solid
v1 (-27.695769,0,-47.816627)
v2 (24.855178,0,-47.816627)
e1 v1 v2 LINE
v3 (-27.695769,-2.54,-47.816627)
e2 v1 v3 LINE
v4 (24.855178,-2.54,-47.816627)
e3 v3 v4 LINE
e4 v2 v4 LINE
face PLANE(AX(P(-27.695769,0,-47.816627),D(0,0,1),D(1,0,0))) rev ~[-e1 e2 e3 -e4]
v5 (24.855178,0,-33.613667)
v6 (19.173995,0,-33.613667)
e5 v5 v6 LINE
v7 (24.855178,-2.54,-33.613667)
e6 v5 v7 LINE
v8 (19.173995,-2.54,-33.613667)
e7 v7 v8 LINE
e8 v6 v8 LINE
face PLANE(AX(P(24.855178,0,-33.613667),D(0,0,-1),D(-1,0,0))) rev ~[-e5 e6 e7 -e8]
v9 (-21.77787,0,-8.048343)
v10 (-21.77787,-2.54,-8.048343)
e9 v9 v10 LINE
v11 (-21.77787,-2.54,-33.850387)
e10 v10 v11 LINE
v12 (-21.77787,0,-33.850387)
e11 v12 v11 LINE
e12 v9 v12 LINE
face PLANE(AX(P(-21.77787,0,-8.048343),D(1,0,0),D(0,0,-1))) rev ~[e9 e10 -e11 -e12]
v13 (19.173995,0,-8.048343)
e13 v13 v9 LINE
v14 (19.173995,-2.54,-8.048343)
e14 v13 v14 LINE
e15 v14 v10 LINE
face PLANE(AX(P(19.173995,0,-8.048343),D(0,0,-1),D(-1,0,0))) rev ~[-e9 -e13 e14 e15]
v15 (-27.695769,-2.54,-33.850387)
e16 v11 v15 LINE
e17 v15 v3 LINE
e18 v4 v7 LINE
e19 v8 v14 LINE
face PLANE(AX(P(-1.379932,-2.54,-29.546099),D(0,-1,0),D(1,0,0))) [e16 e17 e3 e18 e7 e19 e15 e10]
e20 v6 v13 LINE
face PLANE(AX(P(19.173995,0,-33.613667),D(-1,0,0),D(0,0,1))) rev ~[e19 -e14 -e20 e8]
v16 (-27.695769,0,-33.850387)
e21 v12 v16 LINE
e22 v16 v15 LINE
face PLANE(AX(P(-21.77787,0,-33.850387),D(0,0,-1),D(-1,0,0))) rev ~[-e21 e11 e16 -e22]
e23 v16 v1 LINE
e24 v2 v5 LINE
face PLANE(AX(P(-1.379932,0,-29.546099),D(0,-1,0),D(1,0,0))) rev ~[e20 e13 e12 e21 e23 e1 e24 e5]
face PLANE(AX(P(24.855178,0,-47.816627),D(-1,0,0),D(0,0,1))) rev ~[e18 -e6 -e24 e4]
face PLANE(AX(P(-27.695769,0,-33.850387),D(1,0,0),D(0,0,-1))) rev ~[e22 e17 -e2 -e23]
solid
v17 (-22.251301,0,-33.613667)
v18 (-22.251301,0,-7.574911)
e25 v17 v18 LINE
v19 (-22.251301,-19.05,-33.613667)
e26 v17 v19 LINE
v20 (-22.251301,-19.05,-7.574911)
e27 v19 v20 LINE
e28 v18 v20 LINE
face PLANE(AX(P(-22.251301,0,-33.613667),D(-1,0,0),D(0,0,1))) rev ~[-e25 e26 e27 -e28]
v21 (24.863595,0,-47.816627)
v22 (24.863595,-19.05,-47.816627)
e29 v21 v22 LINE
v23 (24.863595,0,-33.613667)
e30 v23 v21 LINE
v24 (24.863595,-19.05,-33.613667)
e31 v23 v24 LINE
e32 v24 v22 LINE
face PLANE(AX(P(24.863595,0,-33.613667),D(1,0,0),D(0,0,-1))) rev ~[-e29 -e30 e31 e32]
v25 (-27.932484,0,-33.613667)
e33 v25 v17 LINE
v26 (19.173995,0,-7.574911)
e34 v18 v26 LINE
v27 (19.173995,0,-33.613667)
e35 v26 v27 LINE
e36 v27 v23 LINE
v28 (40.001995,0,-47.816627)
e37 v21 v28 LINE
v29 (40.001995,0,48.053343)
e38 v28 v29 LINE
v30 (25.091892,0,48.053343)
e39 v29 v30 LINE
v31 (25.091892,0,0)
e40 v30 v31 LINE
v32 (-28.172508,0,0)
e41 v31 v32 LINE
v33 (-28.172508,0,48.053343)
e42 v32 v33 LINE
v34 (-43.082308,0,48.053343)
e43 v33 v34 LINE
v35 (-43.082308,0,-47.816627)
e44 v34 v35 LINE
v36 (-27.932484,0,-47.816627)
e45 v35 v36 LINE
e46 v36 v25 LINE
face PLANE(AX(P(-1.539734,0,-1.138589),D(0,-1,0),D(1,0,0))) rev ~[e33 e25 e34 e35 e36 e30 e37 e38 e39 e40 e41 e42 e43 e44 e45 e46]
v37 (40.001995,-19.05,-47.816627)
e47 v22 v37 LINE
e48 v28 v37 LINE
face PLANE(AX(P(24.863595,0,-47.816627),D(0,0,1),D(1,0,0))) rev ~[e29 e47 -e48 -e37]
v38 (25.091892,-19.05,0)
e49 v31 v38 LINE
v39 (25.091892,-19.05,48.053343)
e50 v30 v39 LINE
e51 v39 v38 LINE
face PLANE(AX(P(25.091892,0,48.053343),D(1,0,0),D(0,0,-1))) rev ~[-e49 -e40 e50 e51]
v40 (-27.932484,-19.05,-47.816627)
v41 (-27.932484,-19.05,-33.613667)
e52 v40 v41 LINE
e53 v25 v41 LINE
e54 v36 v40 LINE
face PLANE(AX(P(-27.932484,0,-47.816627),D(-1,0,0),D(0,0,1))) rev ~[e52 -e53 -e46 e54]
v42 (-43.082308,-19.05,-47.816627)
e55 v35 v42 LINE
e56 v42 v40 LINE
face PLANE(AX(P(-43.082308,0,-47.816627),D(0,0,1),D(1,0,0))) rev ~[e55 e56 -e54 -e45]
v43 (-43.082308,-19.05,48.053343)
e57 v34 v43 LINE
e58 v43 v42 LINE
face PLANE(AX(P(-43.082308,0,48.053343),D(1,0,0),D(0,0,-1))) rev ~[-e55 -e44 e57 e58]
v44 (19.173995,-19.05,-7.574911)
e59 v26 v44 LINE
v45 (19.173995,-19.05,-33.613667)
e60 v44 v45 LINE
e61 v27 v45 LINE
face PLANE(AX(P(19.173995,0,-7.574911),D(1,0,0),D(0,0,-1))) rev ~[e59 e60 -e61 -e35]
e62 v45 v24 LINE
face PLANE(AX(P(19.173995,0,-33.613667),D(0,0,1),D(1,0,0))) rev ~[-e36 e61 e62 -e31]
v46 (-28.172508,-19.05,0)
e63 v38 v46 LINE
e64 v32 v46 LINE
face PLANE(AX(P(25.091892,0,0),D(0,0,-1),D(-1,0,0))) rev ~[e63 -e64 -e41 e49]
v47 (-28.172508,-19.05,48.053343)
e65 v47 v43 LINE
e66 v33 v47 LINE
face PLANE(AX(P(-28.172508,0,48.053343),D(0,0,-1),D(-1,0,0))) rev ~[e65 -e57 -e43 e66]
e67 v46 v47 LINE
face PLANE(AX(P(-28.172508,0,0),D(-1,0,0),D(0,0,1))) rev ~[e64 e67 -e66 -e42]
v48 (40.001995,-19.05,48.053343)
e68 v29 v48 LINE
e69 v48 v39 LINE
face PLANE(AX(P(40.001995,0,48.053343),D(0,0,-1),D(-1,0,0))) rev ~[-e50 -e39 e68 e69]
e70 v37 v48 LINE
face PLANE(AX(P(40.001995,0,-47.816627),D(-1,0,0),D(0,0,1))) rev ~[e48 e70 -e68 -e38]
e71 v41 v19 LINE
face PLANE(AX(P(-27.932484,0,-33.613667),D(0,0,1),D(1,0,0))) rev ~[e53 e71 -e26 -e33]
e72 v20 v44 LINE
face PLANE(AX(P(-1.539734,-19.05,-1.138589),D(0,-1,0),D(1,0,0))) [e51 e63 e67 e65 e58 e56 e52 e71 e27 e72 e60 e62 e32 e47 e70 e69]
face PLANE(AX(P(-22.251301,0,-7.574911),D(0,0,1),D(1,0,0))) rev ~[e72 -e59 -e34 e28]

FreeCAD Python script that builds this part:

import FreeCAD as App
import Part
import Sketcher
from FreeCAD import Vector
Q = App.Units.Quantity


def add_polygon(sketch, points):
    """Adds a closed chain of lines whose ends are joined by coincident constraints."""
    first, n = sketch.GeometryCount, len(points)
    for a, b in zip(points, points[1:] + points[:1]):
        sketch.addGeometry(Part.LineSegment(App.Vector(*a, 0), App.Vector(*b, 0)), False)
    for i in range(n):
        sketch.addConstraint(Sketcher.Constraint("Coincident", first + i, 2, first + (i + 1) % n, 1))

doc = App.newDocument("Part")
body = doc.addObject("PartDesign::Body", "Body")

# Sketch on XZ plane
sketch1 = doc.addObject("Sketcher::SketchObject", "Sketch")
body.addObject(sketch1)
sketch1.AttachmentSupport = (doc.XZ_Plane, [""])
sketch1.MapMode = "FlatFace"
add_polygon(sketch1, [(-28, 48), (-43, 48), (-43, -48), (-28, -48), (-28, -34), (-22, -34), (-22, -8), (19, -8), (19, -34), (25, -34), (25, -48), (40, -48), (40, 48), (25, 48), (25, 0), (-28, 0)])  # lines 0-15
sketch1.addConstraint([
    Sketcher.Constraint("Horizontal", 0),
    Sketcher.Constraint("Vertical", 1),
    Sketcher.Constraint("Horizontal", 2),
    Sketcher.Constraint("Vertical", 3),
    Sketcher.Constraint("Horizontal", 4),
    Sketcher.Constraint("Vertical", 5),
    Sketcher.Constraint("Horizontal", 6),
    Sketcher.Constraint("Vertical", 7),
    Sketcher.Constraint("Horizontal", 8),
    Sketcher.Constraint("Vertical", 9),
    Sketcher.Constraint("Horizontal", 10),
    Sketcher.Constraint("Vertical", 11),
    Sketcher.Constraint("Horizontal", 12),
    Sketcher.Constraint("Vertical", 13),
    Sketcher.Constraint("Horizontal", 14),
    Sketcher.Constraint("Vertical", 15),
    Sketcher.Constraint("PointOnObject", 13, 2, -1),
    Sketcher.Constraint("Horizontal", 4, 2, 7, 2),
    Sketcher.Constraint("Horizontal", 2, 2, 9, 2),
    Sketcher.Constraint("Horizontal", 0, 2, 11, 2),
    Sketcher.Constraint("DistanceX", 0, 2, 0, 1, Q("0.587 in")),
    Sketcher.Constraint("DistanceX", 8, 1, 8, 2, Q("0.224 in")),
    Sketcher.Constraint("DistanceX", 10, 1, 10, 2, Q("0.596 in")),
    Sketcher.Constraint("DistanceX", 14, 2, 14, 1, Q("53.2644 mm")),
    Sketcher.Constraint("DistanceY", 1, 2, 1, 1, Q("95.86997 mm")),
    Sketcher.Constraint("DistanceY", 3, 1, 3, 2, Q("14.20296 mm")),
    Sketcher.Constraint("DistanceX", 4, 2, -1, 1, Q("22.251301 mm")),
    Sketcher.Constraint("DistanceX", 2, 1, 2, 2, Q("15.149824 mm")),
    Sketcher.Constraint("DistanceX", 4, 1, 4, 2, Q("5.681183 mm")),
    Sketcher.Constraint("DistanceX", 6, 1, 6, 2, Q("41.425296 mm")),
    Sketcher.Constraint("DistanceY", 5, 1, 5, 2, Q("26.038756 mm")),
    Sketcher.Constraint("DistanceY", 13, 2, 13, 1, Q("48.053343 mm")),
])
pad1 = doc.addObject("PartDesign::Pad", "Pad")
body.addObject(pad1)
pad1.Profile = sketch1
pad1.Length = Q("0.75 in")
body2 = doc.addObject("PartDesign::Body", "Body001")

# Sketch on XZ plane
sketch2 = doc.addObject("Sketcher::SketchObject", "Sketch001")
body2.addObject(sketch2)
sketch2.AttachmentSupport = (doc.getObject("XZ_Plane001"), [""])
sketch2.MapMode = "FlatFace"
add_polygon(sketch2, [(-28, -34), (-28, -48), (25, -48), (25, -34), (19, -34), (19, -8), (-22, -8), (-22, -34)])  # lines 0-7
sketch2.addConstraint([
    Sketcher.Constraint("Vertical", 0),
    Sketcher.Constraint("Horizontal", 1),
    Sketcher.Constraint("Vertical", 2),
    Sketcher.Constraint("Horizontal", 3),
    Sketcher.Constraint("Vertical", 4),
    Sketcher.Constraint("Horizontal", 5),
    Sketcher.Constraint("Vertical", 6),
    Sketcher.Constraint("Horizontal", 7),
    Sketcher.Constraint("DistanceX", 7, 2, 7, 1, Q("5.917899 mm")),
    Sketcher.Constraint("DistanceY", 0, 2, 0, 1, Q("13.96624 mm")),
    Sketcher.Constraint("DistanceY", 2, 1, 2, 2, Q("14.20296 mm")),
    Sketcher.Constraint("DistanceX", 1, 1, 1, 2, Q("52.550947 mm")),
    Sketcher.Constraint("DistanceX", 3, 2, 3, 1, Q("5.681183 mm")),
    Sketcher.Constraint("DistanceY", 4, 1, 4, 2, Q("25.565324 mm")),
    Sketcher.Constraint("DistanceX", 0, 2, -1, 1, Q("27.695769 mm")),
    Sketcher.Constraint("DistanceY", 0, 2, -1, 1, Q("47.816627 mm")),
])
pad2 = doc.addObject("PartDesign::Pad", "Pad001")
body2.addObject(pad2)
pad2.Profile = sketch2
pad2.Length = Q("0.1 in")

doc.recompute()
